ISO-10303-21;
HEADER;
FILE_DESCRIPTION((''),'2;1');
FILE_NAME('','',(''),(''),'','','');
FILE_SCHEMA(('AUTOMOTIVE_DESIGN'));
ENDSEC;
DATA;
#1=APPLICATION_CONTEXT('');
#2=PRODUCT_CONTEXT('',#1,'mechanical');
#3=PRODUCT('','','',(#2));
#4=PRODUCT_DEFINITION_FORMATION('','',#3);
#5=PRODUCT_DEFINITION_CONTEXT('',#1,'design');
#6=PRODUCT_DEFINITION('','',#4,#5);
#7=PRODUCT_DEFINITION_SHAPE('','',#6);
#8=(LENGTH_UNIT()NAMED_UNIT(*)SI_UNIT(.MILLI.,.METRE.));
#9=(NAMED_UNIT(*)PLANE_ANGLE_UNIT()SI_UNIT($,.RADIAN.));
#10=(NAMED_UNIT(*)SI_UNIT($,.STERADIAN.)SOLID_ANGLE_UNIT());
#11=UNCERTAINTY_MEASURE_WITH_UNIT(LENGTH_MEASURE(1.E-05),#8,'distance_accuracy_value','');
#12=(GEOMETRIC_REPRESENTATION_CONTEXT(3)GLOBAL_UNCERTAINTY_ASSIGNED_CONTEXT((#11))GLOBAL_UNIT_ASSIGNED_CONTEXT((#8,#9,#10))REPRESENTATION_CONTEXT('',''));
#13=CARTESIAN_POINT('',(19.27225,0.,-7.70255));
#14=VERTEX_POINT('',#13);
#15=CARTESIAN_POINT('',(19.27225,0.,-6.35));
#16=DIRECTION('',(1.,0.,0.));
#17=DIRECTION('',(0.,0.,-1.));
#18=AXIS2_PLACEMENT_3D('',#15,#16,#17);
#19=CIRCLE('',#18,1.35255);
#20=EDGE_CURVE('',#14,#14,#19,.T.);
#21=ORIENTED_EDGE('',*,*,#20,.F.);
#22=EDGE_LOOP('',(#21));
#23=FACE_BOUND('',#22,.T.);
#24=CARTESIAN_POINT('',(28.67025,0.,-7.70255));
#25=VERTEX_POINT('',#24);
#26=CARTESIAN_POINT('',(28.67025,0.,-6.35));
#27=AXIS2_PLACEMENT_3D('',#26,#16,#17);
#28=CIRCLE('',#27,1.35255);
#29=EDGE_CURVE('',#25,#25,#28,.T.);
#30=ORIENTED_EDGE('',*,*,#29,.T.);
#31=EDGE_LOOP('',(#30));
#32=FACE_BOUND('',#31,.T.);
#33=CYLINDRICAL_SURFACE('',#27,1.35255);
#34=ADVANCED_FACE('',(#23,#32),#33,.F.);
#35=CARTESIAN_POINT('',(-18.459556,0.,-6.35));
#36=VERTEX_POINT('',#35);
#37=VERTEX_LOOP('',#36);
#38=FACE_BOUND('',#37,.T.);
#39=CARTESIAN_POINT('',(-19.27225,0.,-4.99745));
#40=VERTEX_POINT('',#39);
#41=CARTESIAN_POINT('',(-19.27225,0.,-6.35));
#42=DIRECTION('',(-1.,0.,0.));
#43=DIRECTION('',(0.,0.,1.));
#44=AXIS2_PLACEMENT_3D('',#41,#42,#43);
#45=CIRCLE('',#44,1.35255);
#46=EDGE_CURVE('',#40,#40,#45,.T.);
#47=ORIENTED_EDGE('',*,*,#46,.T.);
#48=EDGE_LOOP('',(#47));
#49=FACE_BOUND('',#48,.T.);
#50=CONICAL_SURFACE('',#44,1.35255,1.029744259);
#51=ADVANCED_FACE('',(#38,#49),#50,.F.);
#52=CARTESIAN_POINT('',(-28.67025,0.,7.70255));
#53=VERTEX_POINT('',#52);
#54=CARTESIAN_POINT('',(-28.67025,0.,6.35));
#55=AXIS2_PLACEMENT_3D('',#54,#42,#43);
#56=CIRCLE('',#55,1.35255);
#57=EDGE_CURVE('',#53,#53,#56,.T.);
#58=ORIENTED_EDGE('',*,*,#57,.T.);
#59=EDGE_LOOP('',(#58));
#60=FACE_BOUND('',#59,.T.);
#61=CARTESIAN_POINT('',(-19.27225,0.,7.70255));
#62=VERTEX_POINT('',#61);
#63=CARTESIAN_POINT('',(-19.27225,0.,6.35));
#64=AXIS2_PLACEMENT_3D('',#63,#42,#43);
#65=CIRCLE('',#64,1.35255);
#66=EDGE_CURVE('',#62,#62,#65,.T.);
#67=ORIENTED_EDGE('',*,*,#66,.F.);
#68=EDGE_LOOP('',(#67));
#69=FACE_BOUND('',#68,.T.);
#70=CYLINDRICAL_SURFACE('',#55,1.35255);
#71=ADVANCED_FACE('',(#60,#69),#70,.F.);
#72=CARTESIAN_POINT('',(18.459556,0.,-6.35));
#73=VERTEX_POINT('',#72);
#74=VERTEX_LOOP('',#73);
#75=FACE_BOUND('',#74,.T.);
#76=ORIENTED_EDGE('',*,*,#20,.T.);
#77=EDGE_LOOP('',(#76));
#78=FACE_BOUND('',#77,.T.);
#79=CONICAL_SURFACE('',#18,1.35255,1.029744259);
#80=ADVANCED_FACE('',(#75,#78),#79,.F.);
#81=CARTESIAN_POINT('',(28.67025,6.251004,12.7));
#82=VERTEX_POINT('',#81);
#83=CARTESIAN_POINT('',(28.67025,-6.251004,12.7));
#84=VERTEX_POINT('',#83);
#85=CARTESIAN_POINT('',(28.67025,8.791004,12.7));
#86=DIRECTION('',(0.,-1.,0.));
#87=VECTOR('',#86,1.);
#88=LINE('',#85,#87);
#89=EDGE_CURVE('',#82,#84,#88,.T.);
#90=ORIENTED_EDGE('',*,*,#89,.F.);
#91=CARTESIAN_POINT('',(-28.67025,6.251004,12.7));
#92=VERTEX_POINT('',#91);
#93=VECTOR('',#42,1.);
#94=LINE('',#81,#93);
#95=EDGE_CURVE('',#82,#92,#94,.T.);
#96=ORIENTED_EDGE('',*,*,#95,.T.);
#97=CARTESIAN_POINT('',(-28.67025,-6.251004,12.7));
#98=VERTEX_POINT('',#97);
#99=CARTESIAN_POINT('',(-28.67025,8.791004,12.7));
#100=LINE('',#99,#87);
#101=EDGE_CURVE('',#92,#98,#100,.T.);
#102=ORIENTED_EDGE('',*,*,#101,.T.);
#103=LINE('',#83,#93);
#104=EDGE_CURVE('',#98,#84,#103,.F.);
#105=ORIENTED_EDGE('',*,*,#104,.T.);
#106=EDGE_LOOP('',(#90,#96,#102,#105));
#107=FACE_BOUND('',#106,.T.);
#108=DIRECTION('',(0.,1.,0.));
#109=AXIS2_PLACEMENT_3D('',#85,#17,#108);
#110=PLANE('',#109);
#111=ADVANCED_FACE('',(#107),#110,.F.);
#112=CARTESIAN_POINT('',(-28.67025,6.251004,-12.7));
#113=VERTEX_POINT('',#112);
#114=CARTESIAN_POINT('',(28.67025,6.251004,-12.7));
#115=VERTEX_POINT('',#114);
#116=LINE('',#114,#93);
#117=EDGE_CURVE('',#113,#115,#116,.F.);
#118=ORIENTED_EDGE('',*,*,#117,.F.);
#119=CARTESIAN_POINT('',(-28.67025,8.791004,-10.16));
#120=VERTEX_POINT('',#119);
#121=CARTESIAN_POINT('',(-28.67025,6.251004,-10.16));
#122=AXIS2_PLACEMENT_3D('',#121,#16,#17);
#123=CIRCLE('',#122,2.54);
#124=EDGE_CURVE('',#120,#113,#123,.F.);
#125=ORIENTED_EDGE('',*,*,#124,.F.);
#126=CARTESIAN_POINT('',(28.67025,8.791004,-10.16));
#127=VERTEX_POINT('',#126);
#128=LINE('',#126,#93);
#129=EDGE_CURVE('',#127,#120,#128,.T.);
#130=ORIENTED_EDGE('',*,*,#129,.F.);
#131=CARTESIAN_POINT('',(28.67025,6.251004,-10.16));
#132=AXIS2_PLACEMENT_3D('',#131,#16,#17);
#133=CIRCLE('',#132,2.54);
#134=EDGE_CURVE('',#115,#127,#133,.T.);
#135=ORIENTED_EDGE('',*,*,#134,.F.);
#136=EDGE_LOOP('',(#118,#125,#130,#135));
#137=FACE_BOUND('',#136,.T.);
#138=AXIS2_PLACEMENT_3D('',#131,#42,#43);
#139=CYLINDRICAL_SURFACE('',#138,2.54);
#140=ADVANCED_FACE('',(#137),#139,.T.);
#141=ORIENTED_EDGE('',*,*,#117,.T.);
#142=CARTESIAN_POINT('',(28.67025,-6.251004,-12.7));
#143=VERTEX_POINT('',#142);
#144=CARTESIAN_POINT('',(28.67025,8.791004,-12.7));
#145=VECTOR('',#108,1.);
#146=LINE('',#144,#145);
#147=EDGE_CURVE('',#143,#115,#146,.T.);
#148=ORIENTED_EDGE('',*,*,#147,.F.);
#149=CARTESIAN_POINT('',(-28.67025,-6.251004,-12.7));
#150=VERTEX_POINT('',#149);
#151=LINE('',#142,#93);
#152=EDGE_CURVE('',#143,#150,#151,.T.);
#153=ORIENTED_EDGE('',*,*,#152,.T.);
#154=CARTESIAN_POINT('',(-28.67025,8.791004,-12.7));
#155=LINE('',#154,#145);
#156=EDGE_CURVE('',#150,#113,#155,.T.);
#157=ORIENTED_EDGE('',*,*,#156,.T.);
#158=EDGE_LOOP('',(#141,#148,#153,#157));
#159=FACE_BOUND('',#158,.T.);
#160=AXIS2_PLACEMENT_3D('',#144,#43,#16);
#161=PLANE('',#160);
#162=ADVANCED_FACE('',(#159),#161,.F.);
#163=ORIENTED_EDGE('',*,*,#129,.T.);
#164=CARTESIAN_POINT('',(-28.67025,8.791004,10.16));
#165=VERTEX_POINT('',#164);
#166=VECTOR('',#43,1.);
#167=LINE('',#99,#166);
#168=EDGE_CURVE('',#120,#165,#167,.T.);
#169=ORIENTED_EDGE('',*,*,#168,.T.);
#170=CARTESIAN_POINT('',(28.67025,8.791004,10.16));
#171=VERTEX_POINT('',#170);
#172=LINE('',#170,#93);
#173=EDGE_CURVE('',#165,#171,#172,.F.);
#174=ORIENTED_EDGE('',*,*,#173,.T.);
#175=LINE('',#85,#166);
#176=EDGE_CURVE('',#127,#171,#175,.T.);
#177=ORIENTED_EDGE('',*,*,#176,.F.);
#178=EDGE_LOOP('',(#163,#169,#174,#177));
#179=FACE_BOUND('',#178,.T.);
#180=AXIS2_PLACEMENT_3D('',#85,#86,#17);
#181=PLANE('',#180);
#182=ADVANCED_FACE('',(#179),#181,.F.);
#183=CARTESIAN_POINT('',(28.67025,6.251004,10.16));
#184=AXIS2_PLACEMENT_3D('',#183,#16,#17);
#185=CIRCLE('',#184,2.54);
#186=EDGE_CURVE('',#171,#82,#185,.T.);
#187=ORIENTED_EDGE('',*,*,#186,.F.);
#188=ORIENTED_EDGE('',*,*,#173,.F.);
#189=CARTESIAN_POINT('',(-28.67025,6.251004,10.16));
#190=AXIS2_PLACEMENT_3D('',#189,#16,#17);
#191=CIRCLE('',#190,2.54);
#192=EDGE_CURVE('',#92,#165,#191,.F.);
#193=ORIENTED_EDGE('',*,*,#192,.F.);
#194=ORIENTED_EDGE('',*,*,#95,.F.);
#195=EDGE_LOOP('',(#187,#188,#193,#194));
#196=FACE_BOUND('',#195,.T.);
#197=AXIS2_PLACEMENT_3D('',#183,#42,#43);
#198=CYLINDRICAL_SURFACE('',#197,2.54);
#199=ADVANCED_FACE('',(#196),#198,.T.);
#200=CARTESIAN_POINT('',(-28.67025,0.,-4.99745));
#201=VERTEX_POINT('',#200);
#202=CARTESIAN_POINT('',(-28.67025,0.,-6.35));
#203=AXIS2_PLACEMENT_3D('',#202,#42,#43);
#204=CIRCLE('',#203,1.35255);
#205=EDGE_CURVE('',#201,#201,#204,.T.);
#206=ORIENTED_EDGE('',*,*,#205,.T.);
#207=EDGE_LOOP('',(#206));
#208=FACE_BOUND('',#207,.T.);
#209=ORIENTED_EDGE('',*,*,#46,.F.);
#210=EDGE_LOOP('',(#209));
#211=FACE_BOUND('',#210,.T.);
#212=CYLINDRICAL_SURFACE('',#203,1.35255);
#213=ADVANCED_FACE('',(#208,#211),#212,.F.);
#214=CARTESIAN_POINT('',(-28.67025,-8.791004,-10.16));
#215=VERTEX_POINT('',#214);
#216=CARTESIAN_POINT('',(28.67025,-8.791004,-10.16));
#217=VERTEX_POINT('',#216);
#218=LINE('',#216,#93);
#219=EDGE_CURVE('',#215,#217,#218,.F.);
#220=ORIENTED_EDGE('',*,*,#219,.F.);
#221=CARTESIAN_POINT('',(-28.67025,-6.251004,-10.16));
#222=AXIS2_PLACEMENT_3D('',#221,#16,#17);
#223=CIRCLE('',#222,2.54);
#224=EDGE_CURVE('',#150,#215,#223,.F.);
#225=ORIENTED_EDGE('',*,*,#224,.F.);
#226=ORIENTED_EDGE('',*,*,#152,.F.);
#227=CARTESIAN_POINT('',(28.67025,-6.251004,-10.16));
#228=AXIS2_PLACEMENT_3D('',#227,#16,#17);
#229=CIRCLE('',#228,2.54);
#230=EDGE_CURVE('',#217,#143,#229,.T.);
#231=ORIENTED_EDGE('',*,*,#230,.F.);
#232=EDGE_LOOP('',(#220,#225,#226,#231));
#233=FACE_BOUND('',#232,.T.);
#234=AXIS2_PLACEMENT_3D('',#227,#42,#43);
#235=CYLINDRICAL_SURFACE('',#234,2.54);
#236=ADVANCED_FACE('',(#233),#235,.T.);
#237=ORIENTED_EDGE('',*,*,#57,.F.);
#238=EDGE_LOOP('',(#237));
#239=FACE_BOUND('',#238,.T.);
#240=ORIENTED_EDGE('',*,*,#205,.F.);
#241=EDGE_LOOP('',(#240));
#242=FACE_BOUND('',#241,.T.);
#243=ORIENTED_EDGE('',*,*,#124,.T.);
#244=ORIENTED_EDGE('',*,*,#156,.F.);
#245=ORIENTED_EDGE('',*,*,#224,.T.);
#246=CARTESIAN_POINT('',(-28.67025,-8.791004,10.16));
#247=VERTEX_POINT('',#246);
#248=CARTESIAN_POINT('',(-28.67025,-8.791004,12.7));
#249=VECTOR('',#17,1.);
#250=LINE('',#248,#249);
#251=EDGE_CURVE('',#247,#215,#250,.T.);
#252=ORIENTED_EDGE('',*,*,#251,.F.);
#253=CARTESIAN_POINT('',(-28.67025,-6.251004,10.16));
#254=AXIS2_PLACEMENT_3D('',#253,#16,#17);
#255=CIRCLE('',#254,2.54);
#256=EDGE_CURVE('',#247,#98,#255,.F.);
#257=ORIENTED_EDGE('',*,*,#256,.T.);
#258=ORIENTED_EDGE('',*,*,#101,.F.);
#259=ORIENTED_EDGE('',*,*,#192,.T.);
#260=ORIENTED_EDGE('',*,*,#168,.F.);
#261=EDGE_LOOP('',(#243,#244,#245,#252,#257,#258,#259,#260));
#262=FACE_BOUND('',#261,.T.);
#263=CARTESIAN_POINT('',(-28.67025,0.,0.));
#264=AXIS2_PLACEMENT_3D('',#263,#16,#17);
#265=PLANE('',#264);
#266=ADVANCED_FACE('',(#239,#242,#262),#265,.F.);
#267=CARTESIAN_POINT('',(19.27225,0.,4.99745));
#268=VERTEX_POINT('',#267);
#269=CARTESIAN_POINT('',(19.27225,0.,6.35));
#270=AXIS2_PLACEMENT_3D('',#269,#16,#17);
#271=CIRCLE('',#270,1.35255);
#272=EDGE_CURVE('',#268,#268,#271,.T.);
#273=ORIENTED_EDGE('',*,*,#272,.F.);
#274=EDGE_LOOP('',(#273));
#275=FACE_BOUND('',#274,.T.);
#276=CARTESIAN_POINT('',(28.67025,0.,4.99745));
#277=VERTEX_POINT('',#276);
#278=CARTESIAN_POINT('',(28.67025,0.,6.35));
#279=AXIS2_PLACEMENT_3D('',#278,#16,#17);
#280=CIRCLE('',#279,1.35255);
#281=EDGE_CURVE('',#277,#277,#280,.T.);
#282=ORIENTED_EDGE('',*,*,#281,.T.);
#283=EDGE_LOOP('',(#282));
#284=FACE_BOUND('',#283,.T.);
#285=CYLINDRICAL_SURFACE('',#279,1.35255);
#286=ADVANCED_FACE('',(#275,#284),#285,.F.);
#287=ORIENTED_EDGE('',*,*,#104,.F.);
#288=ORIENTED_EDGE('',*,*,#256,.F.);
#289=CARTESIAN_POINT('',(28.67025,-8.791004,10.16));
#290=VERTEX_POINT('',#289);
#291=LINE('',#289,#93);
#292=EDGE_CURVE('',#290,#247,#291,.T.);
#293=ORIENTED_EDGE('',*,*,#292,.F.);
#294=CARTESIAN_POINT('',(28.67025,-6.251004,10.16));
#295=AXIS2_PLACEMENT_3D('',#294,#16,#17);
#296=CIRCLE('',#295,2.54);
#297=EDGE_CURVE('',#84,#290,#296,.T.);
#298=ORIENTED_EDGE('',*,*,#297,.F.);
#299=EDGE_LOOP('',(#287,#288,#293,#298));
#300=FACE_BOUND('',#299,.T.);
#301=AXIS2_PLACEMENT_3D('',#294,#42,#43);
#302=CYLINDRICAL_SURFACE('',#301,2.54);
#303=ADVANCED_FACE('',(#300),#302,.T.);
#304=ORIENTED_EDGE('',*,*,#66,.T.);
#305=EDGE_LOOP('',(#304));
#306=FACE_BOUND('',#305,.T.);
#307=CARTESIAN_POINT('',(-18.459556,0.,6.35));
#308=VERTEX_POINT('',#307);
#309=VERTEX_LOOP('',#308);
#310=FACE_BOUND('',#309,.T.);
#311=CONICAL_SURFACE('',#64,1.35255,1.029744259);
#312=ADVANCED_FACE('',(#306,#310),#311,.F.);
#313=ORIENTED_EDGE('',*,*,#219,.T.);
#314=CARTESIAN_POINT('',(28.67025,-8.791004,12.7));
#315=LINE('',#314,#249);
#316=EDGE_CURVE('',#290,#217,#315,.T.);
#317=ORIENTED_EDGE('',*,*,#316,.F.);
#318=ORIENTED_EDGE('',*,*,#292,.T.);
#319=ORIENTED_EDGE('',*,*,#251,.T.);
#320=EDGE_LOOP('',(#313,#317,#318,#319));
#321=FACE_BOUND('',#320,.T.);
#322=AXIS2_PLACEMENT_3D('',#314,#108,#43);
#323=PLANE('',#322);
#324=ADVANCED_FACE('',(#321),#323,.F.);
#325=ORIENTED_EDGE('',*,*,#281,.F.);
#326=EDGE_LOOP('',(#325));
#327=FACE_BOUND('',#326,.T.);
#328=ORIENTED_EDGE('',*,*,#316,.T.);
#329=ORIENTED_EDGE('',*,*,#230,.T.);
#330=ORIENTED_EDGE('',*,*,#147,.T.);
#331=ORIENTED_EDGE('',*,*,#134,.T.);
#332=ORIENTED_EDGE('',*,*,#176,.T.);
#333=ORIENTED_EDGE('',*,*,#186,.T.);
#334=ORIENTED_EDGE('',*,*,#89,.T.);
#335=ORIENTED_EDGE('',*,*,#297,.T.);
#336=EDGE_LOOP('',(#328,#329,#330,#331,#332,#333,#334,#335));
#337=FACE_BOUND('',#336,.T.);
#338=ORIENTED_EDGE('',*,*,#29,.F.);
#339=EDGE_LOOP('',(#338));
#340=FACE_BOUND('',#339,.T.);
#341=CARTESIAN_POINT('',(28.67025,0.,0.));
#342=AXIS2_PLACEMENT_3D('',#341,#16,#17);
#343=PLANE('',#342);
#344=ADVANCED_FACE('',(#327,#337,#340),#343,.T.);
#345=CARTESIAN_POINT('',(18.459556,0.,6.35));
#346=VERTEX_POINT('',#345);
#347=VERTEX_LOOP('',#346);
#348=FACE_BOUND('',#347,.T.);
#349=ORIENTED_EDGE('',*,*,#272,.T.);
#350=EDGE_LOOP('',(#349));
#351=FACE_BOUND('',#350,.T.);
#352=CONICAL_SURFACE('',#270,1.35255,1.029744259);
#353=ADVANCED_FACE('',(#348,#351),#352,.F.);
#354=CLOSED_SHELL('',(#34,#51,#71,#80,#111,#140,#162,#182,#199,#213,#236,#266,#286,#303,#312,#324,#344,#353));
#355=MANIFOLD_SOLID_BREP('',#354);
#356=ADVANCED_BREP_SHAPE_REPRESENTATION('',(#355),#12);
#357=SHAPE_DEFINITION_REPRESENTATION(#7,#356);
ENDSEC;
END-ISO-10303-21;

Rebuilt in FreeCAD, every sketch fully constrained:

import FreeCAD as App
import Part
import Sketcher

V = App.Vector
Q = App.Units.Quantity


def edges_at(feature, points):
    """Names of the edges that pass closest to the given points."""
    edges = feature.Shape.Edges
    near = lambda p: min(range(len(edges)), key=lambda i: edges[i].distToShape(Part.Vertex(*p))[0])
    return sorted({f"Edge{near(p) + 1}" for p in points})


def add_polygon(sketch, points):
    """Adds a closed chain of lines whose ends are joined by coincident constraints."""
    first, n = sketch.GeometryCount, len(points)
    for a, b in zip(points, points[1:] + points[:1]):
        sketch.addGeometry(Part.LineSegment(App.Vector(*a, 0), App.Vector(*b, 0)), False)
    for i in range(n):
        sketch.addConstraint(Sketcher.Constraint("Coincident", first + i, 2, first + (i + 1) % n, 1))

doc = App.newDocument("Part")
body = doc.addObject("PartDesign::Body", "Body")

# Sketch on YZ plane
sketch1 = body.newObject("Sketcher::SketchObject", "Sketch")
sketch1.AttachmentSupport = (doc.getObject("YZ_Plane"), [""])
sketch1.MapMode = "FlatFace"
add_polygon(sketch1, [(9, 13), (-9, 13), (-9, -13), (9, -13)])  # lines 0-3
sketch1.addConstraint(Sketcher.Constraint("Horizontal", 0))
sketch1.addConstraint(Sketcher.Constraint("Vertical", 1))
sketch1.addConstraint(Sketcher.Constraint("Horizontal", 2))
sketch1.addConstraint(Sketcher.Constraint("Vertical", 3))
sketch1.addConstraint(Sketcher.Constraint("Symmetric", 0, 2, 2, 2, -1, 1))
sketch1.addConstraint(Sketcher.Constraint("DistanceY", 1, 2, 1, 1, Q("1 in")))
sketch1.addConstraint(Sketcher.Constraint("DistanceX", 0, 2, 0, 1, Q("17.582007 mm")))
pad1 = body.newObject("PartDesign::Pad", "Pad")
pad1.Profile = sketch1
pad1.Length = Q("2.2575 in")
pad1.Midplane = True

# Sketch on XZ plane
sketch2 = body.newObject("Sketcher::SketchObject", "Sketch001")
sketch2.AttachmentSupport = (doc.getObject("XZ_Plane"), [""])
sketch2.MapMode = "FlatFace"
add_polygon(sketch2, [(18.5, 6.3), (28.7, 6.3), (28.7, 5), (19.3, 5)])  # lines 0-3
sketch2.addGeometry(Part.LineSegment(V(28.7, 6.3, 0), V(18.5, 6.3, 0)), True)  # axis
sketch2.addConstraint(Sketcher.Constraint("Horizontal", 0))
sketch2.addConstraint(Sketcher.Constraint("Vertical", 1))
sketch2.addConstraint(Sketcher.Constraint("Horizontal", 2))
sketch2.addConstraint(Sketcher.Constraint("Horizontal", 4))
sketch2.addConstraint(Sketcher.Constraint("Coincident", 4, 1, 0, 2))
sketch2.addConstraint(Sketcher.Constraint("Equal", 0, 4))
sketch2.addConstraint(Sketcher.Constraint("Angle", 3, Q("121 deg")))
sketch2.addConstraint(Sketcher.Constraint("DistanceX", 2, 2, 2, 1, Q("0.37 in")))
sketch2.addConstraint(Sketcher.Constraint("DistanceY", -1, 1, 0, 2, Q("0.25 in")))
sketch2.addConstraint(Sketcher.Constraint("DistanceY", 1, 2, 1, 1, Q("1.35255 mm")))
sketch2.addConstraint(Sketcher.Constraint("DistanceX", -1, 1, 0, 2, Q("28.67025 mm")))
groove = body.newObject("PartDesign::Groove", "Groove")
groove.Profile = sketch2
groove.ReferenceAxis = (sketch2, ["Axis0"])
groove.Angle = 360
doc.recompute()

linearpattern = body.newObject("PartDesign::LinearPattern", "LinearPattern")
linearpattern.Originals = [groove]
linearpattern.Direction = (doc.getObject("Z_Axis"), [""])
linearpattern.Mode = "offset"
linearpattern.Offset = Q("0.5 in")
linearpattern.Occurrences = 2
linearpattern.Reversed = True
body.Tip = linearpattern
doc.recompute()

mirrored = body.newObject("PartDesign::Mirrored", "Mirrored")
mirrored.Originals = [groove]
mirrored.MirrorPlane = (doc.getObject("YZ_Plane"), [""])
body.Tip = mirrored

# Sketch on XZ plane
sketch3 = body.newObject("Sketcher::SketchObject", "Sketch002")
sketch3.AttachmentSupport = (doc.getObject("XZ_Plane"), [""])
sketch3.MapMode = "FlatFace"
add_polygon(sketch3, [(-28.7, -6.3), (-18.5, -6.3), (-19.3, -7.7), (-28.7, -7.7)])  # lines 0-3
sketch3.addGeometry(Part.LineSegment(V(-18.5, -6.3, 0), V(-28.7, -6.3, 0)), True)  # axis
sketch3.addConstraint(Sketcher.Constraint("Horizontal", 0))
sketch3.addConstraint(Sketcher.Constraint("Horizontal", 2))
sketch3.addConstraint(Sketcher.Constraint("Vertical", 3))
sketch3.addConstraint(Sketcher.Constraint("Horizontal", 4))
sketch3.addConstraint(Sketcher.Constraint("Coincident", 4, 1, 0, 2))
sketch3.addConstraint(Sketcher.Constraint("Vertical", 2, 2, 4, 2))
sketch3.addConstraint(Sketcher.Constraint("Angle", 1, Q("-121 deg")))
sketch3.addConstraint(Sketcher.Constraint("DistanceX", 2, 2, 2, 1, Q("0.37 in")))
sketch3.addConstraint(Sketcher.Constraint("DistanceY", 0, 2, -1, 1, Q("0.25 in")))
sketch3.addConstraint(Sketcher.Constraint("DistanceY", 3, 1, 3, 2, Q("1.35255 mm")))
sketch3.addConstraint(Sketcher.Constraint("DistanceX", 1, 2, -1, 1, Q("19.27225 mm")))
groove2 = body.newObject("PartDesign::Groove", "Groove001")
groove2.Profile = sketch3
groove2.ReferenceAxis = (sketch3, ["Axis0"])
groove2.Angle = 360
doc.recompute()

fillet = body.newObject("PartDesign::Fillet", "Fillet")
fillet.Base = (groove2, edges_at(groove2, [
    (0, -8.791, -12.7),
    (0, -8.791, 12.7),
    (0, 8.791, 12.7),
    (0, 8.791, -12.7),
]))
fillet.Radius = Q("0.1 in")

doc.recompute()
